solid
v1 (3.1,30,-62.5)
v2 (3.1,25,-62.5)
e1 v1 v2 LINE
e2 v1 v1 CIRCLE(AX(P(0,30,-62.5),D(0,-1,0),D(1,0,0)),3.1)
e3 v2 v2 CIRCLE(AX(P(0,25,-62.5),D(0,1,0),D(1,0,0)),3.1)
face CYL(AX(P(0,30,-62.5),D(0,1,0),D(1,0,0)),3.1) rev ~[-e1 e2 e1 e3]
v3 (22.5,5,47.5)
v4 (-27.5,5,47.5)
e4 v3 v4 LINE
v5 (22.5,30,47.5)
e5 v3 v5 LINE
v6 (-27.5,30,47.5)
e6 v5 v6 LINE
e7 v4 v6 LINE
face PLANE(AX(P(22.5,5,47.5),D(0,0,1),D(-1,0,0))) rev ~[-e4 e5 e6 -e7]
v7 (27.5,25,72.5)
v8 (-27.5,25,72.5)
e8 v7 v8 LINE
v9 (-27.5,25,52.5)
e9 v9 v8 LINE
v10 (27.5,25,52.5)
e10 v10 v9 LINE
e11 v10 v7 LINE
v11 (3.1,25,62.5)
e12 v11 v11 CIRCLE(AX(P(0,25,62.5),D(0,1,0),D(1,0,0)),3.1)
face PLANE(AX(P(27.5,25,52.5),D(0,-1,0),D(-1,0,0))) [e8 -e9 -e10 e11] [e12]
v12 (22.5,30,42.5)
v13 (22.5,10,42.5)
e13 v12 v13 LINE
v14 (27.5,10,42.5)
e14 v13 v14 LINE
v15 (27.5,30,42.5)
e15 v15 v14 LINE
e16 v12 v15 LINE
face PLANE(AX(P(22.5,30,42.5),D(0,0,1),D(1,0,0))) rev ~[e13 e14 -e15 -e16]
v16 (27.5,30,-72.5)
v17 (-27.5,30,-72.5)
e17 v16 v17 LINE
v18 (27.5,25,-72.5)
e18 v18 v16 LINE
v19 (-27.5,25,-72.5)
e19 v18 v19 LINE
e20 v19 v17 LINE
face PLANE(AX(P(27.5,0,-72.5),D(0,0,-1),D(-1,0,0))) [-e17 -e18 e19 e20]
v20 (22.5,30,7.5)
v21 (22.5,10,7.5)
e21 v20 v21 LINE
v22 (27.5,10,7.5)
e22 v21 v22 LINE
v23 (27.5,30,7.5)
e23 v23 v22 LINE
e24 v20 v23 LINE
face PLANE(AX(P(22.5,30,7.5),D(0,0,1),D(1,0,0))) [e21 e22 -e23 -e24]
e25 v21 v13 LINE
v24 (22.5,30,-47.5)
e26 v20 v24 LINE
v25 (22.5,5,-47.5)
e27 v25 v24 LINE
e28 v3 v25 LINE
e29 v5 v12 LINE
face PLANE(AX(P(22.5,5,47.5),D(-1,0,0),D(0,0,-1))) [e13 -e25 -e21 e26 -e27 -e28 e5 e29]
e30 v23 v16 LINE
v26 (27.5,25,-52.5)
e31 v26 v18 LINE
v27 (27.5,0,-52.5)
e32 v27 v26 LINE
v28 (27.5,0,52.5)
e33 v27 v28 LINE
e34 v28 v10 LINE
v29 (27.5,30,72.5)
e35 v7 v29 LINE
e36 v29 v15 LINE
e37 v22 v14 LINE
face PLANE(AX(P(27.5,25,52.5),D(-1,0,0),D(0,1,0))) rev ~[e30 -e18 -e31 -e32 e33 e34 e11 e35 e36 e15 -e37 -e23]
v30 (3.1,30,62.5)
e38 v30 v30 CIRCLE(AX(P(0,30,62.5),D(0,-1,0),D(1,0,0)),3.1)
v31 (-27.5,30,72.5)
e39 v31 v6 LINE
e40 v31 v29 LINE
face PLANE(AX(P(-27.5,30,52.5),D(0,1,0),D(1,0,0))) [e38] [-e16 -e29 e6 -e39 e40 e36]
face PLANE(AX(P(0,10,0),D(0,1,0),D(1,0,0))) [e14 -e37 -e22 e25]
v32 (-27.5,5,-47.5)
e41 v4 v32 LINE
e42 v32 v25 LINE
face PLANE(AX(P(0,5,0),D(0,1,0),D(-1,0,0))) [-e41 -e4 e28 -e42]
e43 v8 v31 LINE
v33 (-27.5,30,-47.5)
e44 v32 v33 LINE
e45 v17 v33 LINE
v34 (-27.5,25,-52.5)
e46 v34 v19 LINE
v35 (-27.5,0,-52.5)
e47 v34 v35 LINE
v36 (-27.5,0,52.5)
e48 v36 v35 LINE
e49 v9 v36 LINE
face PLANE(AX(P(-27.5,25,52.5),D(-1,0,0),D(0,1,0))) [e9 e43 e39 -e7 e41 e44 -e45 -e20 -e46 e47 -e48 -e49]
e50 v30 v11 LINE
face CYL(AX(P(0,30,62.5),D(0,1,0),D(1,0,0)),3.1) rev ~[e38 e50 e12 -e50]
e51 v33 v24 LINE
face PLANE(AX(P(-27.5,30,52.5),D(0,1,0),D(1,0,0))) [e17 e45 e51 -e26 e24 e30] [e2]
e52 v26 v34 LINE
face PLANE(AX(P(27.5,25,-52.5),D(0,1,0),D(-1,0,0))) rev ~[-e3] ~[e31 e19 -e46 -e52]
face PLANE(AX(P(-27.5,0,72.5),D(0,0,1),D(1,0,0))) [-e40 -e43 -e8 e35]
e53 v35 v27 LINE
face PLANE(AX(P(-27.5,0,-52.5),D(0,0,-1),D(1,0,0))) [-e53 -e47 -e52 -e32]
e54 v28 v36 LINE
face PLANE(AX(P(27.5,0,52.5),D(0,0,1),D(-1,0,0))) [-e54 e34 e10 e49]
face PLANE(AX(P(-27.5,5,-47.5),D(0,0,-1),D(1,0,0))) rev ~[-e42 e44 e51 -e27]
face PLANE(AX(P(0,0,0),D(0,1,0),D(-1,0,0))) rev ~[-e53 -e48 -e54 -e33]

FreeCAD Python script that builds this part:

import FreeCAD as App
import Part
import Sketcher
from FreeCAD import Vector
Q = App.Units.Quantity


def add_polygon(sketch, points):
    """Adds a closed chain of lines whose ends are joined by coincident constraints."""
    first, n = sketch.GeometryCount, len(points)
    for a, b in zip(points, points[1:] + points[:1]):
        sketch.addGeometry(Part.LineSegment(App.Vector(*a, 0), App.Vector(*b, 0)), False)
    for i in range(n):
        sketch.addConstraint(Sketcher.Constraint("Coincident", first + i, 2, first + (i + 1) % n, 1))

doc = App.newDocument("Part")
body = doc.addObject("PartDesign::Body", "Body")

sketch1 = body.newObject("Sketcher::SketchObject", "Sketch")
sketch1.AttachmentSupport = (doc.getObject("XZ_Plane"), [""])
sketch1.MapMode = "FlatFace"
add_polygon(sketch1, [(-28, 52), (28, 52), (28, -52), (-28, -52)])
sketch1.addConstraint(Sketcher.Constraint("Horizontal", 0))
sketch1.addConstraint(Sketcher.Constraint("Vertical", 1))
sketch1.addConstraint(Sketcher.Constraint("Horizontal", 2))
sketch1.addConstraint(Sketcher.Constraint("Vertical", 3))
sketch1.addConstraint(Sketcher.Constraint("Symmetric", 0, 2, 2, 2, -1, 1))
sketch1.addConstraint(Sketcher.Constraint("DistanceX", 0, 1, 0, 2, Q("55 mm")))
sketch1.addConstraint(Sketcher.Constraint("DistanceY", 1, 2, 1, 1, Q("105 mm")))
pad1 = body.newObject("PartDesign::Pad", "Pad")
pad1.Profile = sketch1
pad1.Length = 5
pad1.Reversed = True

sketch2 = body.newObject("Sketcher::SketchObject", "Sketch001")
sketch2.AttachmentSupport = (doc.getObject("XZ_Plane"), [""])
sketch2.MapMode = "FlatFace"
sketch2.AttachmentOffset = App.Placement(Vector(0, 0, -5), App.Rotation())
add_polygon(sketch2, [(28, -52), (-28, -52), (-28, -48), (22, -48), (22, 48), (-28, 48), (-28, 52), (28, 52)])
sketch2.addConstraint(Sketcher.Constraint("Horizontal", 0))
sketch2.addConstraint(Sketcher.Constraint("Vertical", 1))
sketch2.addConstraint(Sketcher.Constraint("Horizontal", 2))
sketch2.addConstraint(Sketcher.Constraint("Vertical", 3))
sketch2.addConstraint(Sketcher.Constraint("Horizontal", 4))
sketch2.addConstraint(Sketcher.Constraint("Vertical", 5))
sketch2.addConstraint(Sketcher.Constraint("Horizontal", 6))
sketch2.addConstraint(Sketcher.Constraint("Vertical", 7))
sketch2.addConstraint(Sketcher.Constraint("Symmetric", 0, 2, 6, 2, -1, 1))
sketch2.addConstraint(Sketcher.Constraint("Symmetric", 1, 2, 4, 2, -1))
sketch2.addConstraint(Sketcher.Constraint("DistanceY", 1, 1, 1, 2, Q("5 mm")))
sketch2.addConstraint(Sketcher.Constraint("DistanceX", 3, 2, 6, 2, Q("5 mm")))
sketch2.addConstraint(Sketcher.Constraint("DistanceX", 0, 2, 0, 1, Q("55 mm")))
sketch2.addConstraint(Sketcher.Constraint("DistanceY", 3, 1, 3, 2, Q("95 mm")))
pad2 = body.newObject("PartDesign::Pad", "Pad001")
pad2.Profile = sketch2
pad2.Length = 25
pad2.Reversed = True

sketch3 = body.newObject("Sketcher::SketchObject", "Sketch002")
sketch3.AttachmentSupport = (doc.getObject("XY_Plane"), [""])
sketch3.MapMode = "FlatFace"
sketch3.AttachmentOffset = App.Placement(Vector(0, 0, -52.5), App.Rotation())
add_polygon(sketch3, [(28, 30), (28, 25), (-28, 25), (-28, 30)])
sketch3.addConstraint(Sketcher.Constraint("Vertical", 0))
sketch3.addConstraint(Sketcher.Constraint("Horizontal", 1))
sketch3.addConstraint(Sketcher.Constraint("Vertical", 2))
sketch3.addConstraint(Sketcher.Constraint("Horizontal", 3))
sketch3.addConstraint(Sketcher.Constraint("DistanceY", 0, 2, 0, 1, Q("5 mm")))
sketch3.addConstraint(Sketcher.Constraint("DistanceX", 1, 2, 1, 1, Q("55 mm")))
sketch3.addConstraint(Sketcher.Constraint("DistanceY", -1, 1, 0, 2, Q("25 mm")))
sketch3.addConstraint(Sketcher.Constraint("DistanceX", -1, 1, 0, 2, Q("27.5 mm")))
pad3 = body.newObject("PartDesign::Pad", "Pad002")
pad3.Profile = sketch3
pad3.Length = 20
pad3.Reversed = True

sketch4 = body.newObject("Sketcher::SketchObject", "Sketch003")
sketch4.AttachmentSupport = (doc.getObject("XY_Plane"), [""])
sketch4.MapMode = "FlatFace"
sketch4.AttachmentOffset = App.Placement(Vector(0, 0, 52.5), App.Rotation())
add_polygon(sketch4, [(-28, 30), (-28, 25), (28, 25), (28, 30)])
sketch4.addConstraint(Sketcher.Constraint("Vertical", 0))
sketch4.addConstraint(Sketcher.Constraint("Horizontal", 1))
sketch4.addConstraint(Sketcher.Constraint("Vertical", 2))
sketch4.addConstraint(Sketcher.Constraint("Horizontal", 3))
sketch4.addConstraint(Sketcher.Constraint("DistanceY", 0, 2, 0, 1, Q("5 mm")))
sketch4.addConstraint(Sketcher.Constraint("DistanceX", 1, 1, 1, 2, Q("55 mm")))
sketch4.addConstraint(Sketcher.Constraint("DistanceY", -1, 1, 0, 2, Q("25 mm")))
sketch4.addConstraint(Sketcher.Constraint("DistanceX", 0, 2, -1, 1, Q("27.5 mm")))
pad4 = body.newObject("PartDesign::Pad", "Pad003")
pad4.Profile = sketch4
pad4.Length = 20

sketch5 = body.newObject("Sketcher::SketchObject", "Sketch004")
sketch5.AttachmentSupport = (doc.getObject("XZ_Plane"), [""])
sketch5.MapMode = "FlatFace"
sketch5.AttachmentOffset = App.Placement(Vector(0, 0, -30), App.Rotation())
sketch5.addGeometry(Part.Circle(Vector(0, 62.5, 0), Vector(0, 0, 1), 3.1), False)
sketch5.addGeometry(Part.Circle(Vector(0, -62.5, 0), Vector(0, 0, 1), 3.1), False)
sketch5.addConstraint(Sketcher.Constraint("Equal", 0, 1))
sketch5.addConstraint(Sketcher.Constraint("Symmetric", 0, 3, 1, 3, -1, 1))
sketch5.addConstraint(Sketcher.Constraint("PointOnObject", 0, 3, -2))
sketch5.addConstraint(Sketcher.Constraint("Diameter", 0, Q("6.2 mm")))
sketch5.addConstraint(Sketcher.Constraint("DistanceY", 1, 3, 0, 3, Q("125 mm")))
pocket1 = body.newObject("PartDesign::Pocket", "Pocket")
pocket1.Profile = sketch5
pocket1.Length = 20
pocket1.Reversed = True

sketch6 = body.newObject("Sketcher::SketchObject", "Sketch005")
sketch6.AttachmentSupport = (doc.getObject("XZ_Plane"), [""])
sketch6.MapMode = "FlatFace"
sketch6.AttachmentOffset = App.Placement(Vector(0, 0, -30), App.Rotation())
add_polygon(sketch6, [(22, 8), (22, 42), (28, 42), (28, 8)])
sketch6.addConstraint(Sketcher.Constraint("Vertical", 0))
sketch6.addConstraint(Sketcher.Constraint("Horizontal", 1))
sketch6.addConstraint(Sketcher.Constraint("Vertical", 2))
sketch6.addConstraint(Sketcher.Constraint("Horizontal", 3))
sketch6.addConstraint(Sketcher.Constraint("DistanceX", 1, 1, 1, 2, Q("5 mm")))
sketch6.addConstraint(Sketcher.Constraint("DistanceY", 0, 1, 0, 2, Q("35 mm")))
sketch6.addConstraint(Sketcher.Constraint("DistanceX", -1, 1, 0, 2, Q("22.5 mm")))
sketch6.addConstraint(Sketcher.Constraint("DistanceY", -1, 1, 0, 2, Q("42.5 mm")))
pocket2 = body.newObject("PartDesign::Pocket", "Pocket001")
pocket2.Profile = sketch6
pocket2.Length = 20
pocket2.Reversed = True

doc.recompute()
